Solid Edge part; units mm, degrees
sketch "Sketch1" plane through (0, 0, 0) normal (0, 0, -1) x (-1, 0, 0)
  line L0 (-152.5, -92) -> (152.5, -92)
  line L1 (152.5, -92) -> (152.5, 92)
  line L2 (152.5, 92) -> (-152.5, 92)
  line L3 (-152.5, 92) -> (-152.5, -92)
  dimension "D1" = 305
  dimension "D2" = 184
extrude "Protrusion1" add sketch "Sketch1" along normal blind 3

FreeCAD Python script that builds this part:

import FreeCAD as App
import Part
import Sketcher
from FreeCAD import Vector


def add_polygon(sketch, points):
    """Adds a closed chain of lines whose ends are joined by coincident constraints."""
    first, n = sketch.GeometryCount, len(points)
    for a, b in zip(points, points[1:] + points[:1]):
        sketch.addGeometry(Part.LineSegment(App.Vector(*a, 0), App.Vector(*b, 0)), False)
    for i in range(n):
        sketch.addConstraint(Sketcher.Constraint("Coincident", first + i, 2, first + (i + 1) % n, 1))

doc = App.newDocument("Part")
body = doc.addObject("PartDesign::Body", "Body")

sketch1 = body.newObject("Sketcher::SketchObject", "Sketch")
sketch1.AttachmentSupport = (doc.getObject("XY_Plane"), [""])
sketch1.MapMode = "FlatFace"
add_polygon(sketch1, [(152, 92), (152, -92), (-152, -92), (-152, 92)])
sketch1.addConstraint(Sketcher.Constraint("Vertical", 0))
sketch1.addConstraint(Sketcher.Constraint("Horizontal", 1))
sketch1.addConstraint(Sketcher.Constraint("Vertical", 2))
sketch1.addConstraint(Sketcher.Constraint("Horizontal", 3))
sketch1.addConstraint(Sketcher.Constraint("Symmetric", 0, 2, 2, 2, -1, 1))
sketch1.addConstraint(Sketcher.Constraint("DistanceX", 1, 2, 1, 1, 305.0))
sketch1.addConstraint(Sketcher.Constraint("DistanceY", 0, 2, 0, 1, 184.0))
pad1 = body.newObject("PartDesign::Pad", "Pad")
pad1.Profile = sketch1
pad1.Length = 3
pad1.Reversed = True

doc.recompute()
